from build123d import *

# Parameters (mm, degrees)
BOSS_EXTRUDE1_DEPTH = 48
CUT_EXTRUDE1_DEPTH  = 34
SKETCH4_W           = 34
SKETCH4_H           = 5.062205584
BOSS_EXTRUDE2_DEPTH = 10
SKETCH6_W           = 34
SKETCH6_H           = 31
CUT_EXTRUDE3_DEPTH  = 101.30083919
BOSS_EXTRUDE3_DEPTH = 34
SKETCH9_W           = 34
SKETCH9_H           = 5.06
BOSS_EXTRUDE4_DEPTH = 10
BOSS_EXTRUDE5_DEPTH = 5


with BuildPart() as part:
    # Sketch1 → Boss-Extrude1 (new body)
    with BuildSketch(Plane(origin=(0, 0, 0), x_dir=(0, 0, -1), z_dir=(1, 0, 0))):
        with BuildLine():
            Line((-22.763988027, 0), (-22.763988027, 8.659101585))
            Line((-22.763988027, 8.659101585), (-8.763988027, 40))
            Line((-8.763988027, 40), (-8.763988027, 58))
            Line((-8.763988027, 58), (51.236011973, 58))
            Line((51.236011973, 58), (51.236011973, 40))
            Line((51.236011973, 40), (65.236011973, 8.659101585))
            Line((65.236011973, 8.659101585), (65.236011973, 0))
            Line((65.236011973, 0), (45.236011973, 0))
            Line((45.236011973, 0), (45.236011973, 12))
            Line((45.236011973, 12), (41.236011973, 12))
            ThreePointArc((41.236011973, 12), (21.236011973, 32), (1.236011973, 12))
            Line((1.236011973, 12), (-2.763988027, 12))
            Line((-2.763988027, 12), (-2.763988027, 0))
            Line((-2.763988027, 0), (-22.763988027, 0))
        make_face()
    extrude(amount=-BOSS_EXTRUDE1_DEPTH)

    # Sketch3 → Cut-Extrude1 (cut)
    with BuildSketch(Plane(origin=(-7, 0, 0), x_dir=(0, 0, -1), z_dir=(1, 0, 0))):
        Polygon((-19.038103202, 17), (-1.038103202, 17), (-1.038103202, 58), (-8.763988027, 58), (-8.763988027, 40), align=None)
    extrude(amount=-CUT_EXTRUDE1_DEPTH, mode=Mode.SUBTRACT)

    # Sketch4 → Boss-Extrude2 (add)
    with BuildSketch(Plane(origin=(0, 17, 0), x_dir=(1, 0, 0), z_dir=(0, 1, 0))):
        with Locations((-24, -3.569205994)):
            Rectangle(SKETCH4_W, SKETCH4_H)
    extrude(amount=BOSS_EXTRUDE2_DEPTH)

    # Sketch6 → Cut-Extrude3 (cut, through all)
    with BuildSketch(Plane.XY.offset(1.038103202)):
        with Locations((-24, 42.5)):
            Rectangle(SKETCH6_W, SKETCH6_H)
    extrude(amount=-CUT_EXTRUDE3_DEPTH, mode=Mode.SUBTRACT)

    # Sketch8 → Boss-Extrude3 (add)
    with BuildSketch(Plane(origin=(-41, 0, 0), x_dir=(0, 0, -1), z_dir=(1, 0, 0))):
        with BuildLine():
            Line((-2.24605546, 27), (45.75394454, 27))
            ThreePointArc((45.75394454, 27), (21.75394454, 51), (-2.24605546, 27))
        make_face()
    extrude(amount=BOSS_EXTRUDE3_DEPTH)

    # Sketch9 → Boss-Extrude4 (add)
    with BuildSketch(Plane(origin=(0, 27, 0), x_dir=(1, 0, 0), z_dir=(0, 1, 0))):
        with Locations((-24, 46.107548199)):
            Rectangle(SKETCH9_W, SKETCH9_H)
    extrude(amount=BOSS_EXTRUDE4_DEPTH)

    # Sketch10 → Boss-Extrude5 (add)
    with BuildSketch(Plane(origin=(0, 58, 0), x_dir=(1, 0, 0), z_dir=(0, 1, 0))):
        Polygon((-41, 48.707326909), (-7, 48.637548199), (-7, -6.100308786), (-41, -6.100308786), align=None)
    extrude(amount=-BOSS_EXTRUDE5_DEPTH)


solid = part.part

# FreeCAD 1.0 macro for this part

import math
import FreeCAD as App
import Part
import Sketcher

V = App.Vector
Q = App.Units.Quantity


def add_polygon(sketch, points):
    """Adds a closed chain of lines whose ends are joined by coincident constraints."""
    first, n = sketch.GeometryCount, len(points)
    for a, b in zip(points, points[1:] + points[:1]):
        sketch.addGeometry(Part.LineSegment(App.Vector(*a, 0), App.Vector(*b, 0)), False)
    for i in range(n):
        sketch.addConstraint(Sketcher.Constraint("Coincident", first + i, 2, first + (i + 1) % n, 1))

doc = App.newDocument("Part")
body = doc.addObject("PartDesign::Body", "Body")

# Sketch on YZ plane
sketch1 = doc.addObject("Sketcher::SketchObject", "Sketch")
body.addObject(sketch1)
sketch1.AttachmentSupport = (doc.YZ_Plane, [""])
sketch1.MapMode = "FlatFace"
sketch1.addGeometry([
    Part.LineSegment(V(8.7, 22.8, 0), V(0, 22.8, 0)),  # 0
    Part.LineSegment(V(0, 22.8, 0), V(0, 2.8, 0)),  # 1
    Part.LineSegment(V(0, 2.8, 0), V(12, 2.8, 0)),  # 2
    Part.LineSegment(V(12, 2.8, 0), V(12, -1.2, 0)),  # 3
    Part.ArcOfCircle(Part.Circle(V(12, -21.2, 0), V(0, 0, 1), 20), math.radians(-90), math.radians(90)),  # 4
    Part.LineSegment(V(12, -41.2, 0), V(12, -45.2, 0)),  # 5
    Part.LineSegment(V(12, -45.2, 0), V(0, -45.2, 0)),  # 6
    Part.LineSegment(V(0, -45.2, 0), V(0, -65.2, 0)),  # 7
    Part.LineSegment(V(0, -65.2, 0), V(8.7, -65.2, 0)),  # 8
    Part.LineSegment(V(8.7, -65.2, 0), V(40, -51.2, 0)),  # 9
    Part.LineSegment(V(40, -51.2, 0), V(58, -51.2, 0)),  # 10
    Part.LineSegment(V(58, -51.2, 0), V(58, 8.8, 0)),  # 11
    Part.LineSegment(V(58, 8.8, 0), V(40, 8.8, 0)),  # 12
    Part.LineSegment(V(40, 8.8, 0), V(8.7, 22.8, 0)),  # 13
], False)
sketch1.addConstraint([
    Sketcher.Constraint("Coincident", 0, 2, 1, 1),
    Sketcher.Constraint("Coincident", 1, 2, 2, 1),
    Sketcher.Constraint("Coincident", 2, 2, 3, 1),
    Sketcher.Constraint("Coincident", 3, 2, 4, 2),
    Sketcher.Constraint("Coincident", 4, 1, 5, 1),
    Sketcher.Constraint("Coincident", 5, 2, 6, 1),
    Sketcher.Constraint("Coincident", 6, 2, 7, 1),
    Sketcher.Constraint("Coincident", 7, 2, 8, 1),
    Sketcher.Constraint("Coincident", 8, 2, 9, 1),
    Sketcher.Constraint("Coincident", 9, 2, 10, 1),
    Sketcher.Constraint("Coincident", 10, 2, 11, 1),
    Sketcher.Constraint("Coincident", 11, 2, 12, 1),
    Sketcher.Constraint("Coincident", 12, 2, 13, 1),
    Sketcher.Constraint("Coincident", 13, 2, 0, 1),
    Sketcher.Constraint("Horizontal", 0),
    Sketcher.Constraint("Vertical", 1),
    Sketcher.Constraint("Horizontal", 2),
    Sketcher.Constraint("Vertical", 3),
    Sketcher.Constraint("Vertical", 5),
    Sketcher.Constraint("Horizontal", 6),
    Sketcher.Constraint("Vertical", 7),
    Sketcher.Constraint("Horizontal", 8),
    Sketcher.Constraint("Horizontal", 10),
    Sketcher.Constraint("Vertical", 11),
    Sketcher.Constraint("Horizontal", 12),
    Sketcher.Constraint("PointOnObject", 0, 2, -2),
    Sketcher.Constraint("PointOnObject", 6, 2, -2),
    Sketcher.Constraint("Vertical", 4, 3, 2, 2),
    Sketcher.Constraint("Vertical", 3, 2, 4, 1),
    Sketcher.Constraint("Vertical", 9, 2, 12, 2),
    Sketcher.Constraint("Vertical", 8, 2, 13, 2),
    Sketcher.Constraint("Equal", 3, 5),
    Sketcher.Constraint("Equal", 1, 7),
    Sketcher.Constraint("Equal", 9, 13),
    Sketcher.Constraint("Radius", 4, Q("20 mm")),
    Sketcher.Constraint("DistanceX", 2, 1, 2, 2, Q("12 mm")),
    Sketcher.Constraint("DistanceX", 10, 1, 10, 2, Q("18 mm")),
    Sketcher.Constraint("DistanceY", 1, 2, 1, 1, Q("20 mm")),
    Sketcher.Constraint("DistanceY", 3, 2, 3, 1, Q("4 mm")),
    Sketcher.Constraint("DistanceY", 11, 1, 11, 2, Q("60 mm")),
    Sketcher.Constraint("DistanceX", -1, 1, 9, 2, Q("40 mm")),
    Sketcher.Constraint("DistanceX", 0, 2, 0, 1, Q("8.659102 mm")),
    Sketcher.Constraint("DistanceY", 4, 3, -1, 1, Q("21.236012 mm")),
])
pad1 = doc.addObject("PartDesign::Pad", "Pad")
body.addObject(pad1)
pad1.Profile = sketch1
pad1.Length = 48
pad1.Reversed = True

# Sketch on YZ plane
sketch2 = doc.addObject("Sketcher::SketchObject", "Sketch001")
body.addObject(sketch2)
sketch2.AttachmentSupport = (doc.YZ_Plane, [""])
sketch2.MapMode = "FlatFace"
sketch2.AttachmentOffset = App.Placement(V(0, 0, -7), App.Rotation())
add_polygon(sketch2, [(17, 19), (17, 1), (58, 1), (58, 9), (40, 9)])  # lines 0-4
sketch2.addConstraint([
    Sketcher.Constraint("Vertical", 0),
    Sketcher.Constraint("Horizontal", 1),
    Sketcher.Constraint("Vertical", 2),
    Sketcher.Constraint("Horizontal", 3),
    Sketcher.Constraint("Equal", 3, 0),
    Sketcher.Constraint("DistanceX", 1, 1, 1, 2, Q("41 mm")),
    Sketcher.Constraint("DistanceX", 3, 2, 3, 1, Q("18 mm")),
    Sketcher.Constraint("DistanceX", -1, 1, 0, 2, Q("17 mm")),
    Sketcher.Constraint("DistanceY", 2, 1, 2, 2, Q("7.725885 mm")),
    Sketcher.Constraint("DistanceY", -1, 1, 2, 2, Q("8.763988 mm")),
])
pocket1 = doc.addObject("PartDesign::Pocket", "Pocket")
body.addObject(pocket1)
pocket1.Profile = sketch2
pocket1.Length = 34

# Sketch on XZ plane
sketch3 = doc.addObject("Sketcher::SketchObject", "Sketch002")
body.addObject(sketch3)
sketch3.AttachmentSupport = (doc.XZ_Plane, [""])
sketch3.MapMode = "FlatFace"
sketch3.AttachmentOffset = App.Placement(V(0, 0, -17), App.Rotation())
add_polygon(sketch3, [(-41, 1), (-41, 6), (-7, 6), (-7, 1)])  # lines 0-3
sketch3.addConstraint([
    Sketcher.Constraint("Vertical", 0),
    Sketcher.Constraint("Horizontal", 1),
    Sketcher.Constraint("Vertical", 2),
    Sketcher.Constraint("Horizontal", 3),
    Sketcher.Constraint("DistanceX", 1, 1, 1, 2, Q("34 mm")),
    Sketcher.Constraint("DistanceX", 0, 2, -1, 1, Q("41 mm")),
    Sketcher.Constraint("DistanceY", 0, 1, 0, 2, Q("5.062206 mm")),
    Sketcher.Constraint("DistanceY", -1, 1, 0, 2, Q("6.100309 mm")),
])
pad2 = doc.addObject("PartDesign::Pad", "Pad001")
body.addObject(pad2)
pad2.Profile = sketch3
pad2.Length = 10
pad2.Reversed = True

# Sketch on XY plane
sketch4 = doc.addObject("Sketcher::SketchObject", "Sketch003")
body.addObject(sketch4)
sketch4.AttachmentSupport = (doc.XY_Plane, [""])
sketch4.MapMode = "FlatFace"
sketch4.AttachmentOffset = App.Placement(V(0, 0, 1.038103), App.Rotation())
add_polygon(sketch4, [(-41, 58), (-41, 27), (-7, 27), (-7, 58)])  # lines 0-3
sketch4.addConstraint([
    Sketcher.Constraint("Vertical", 0),
    Sketcher.Constraint("Horizontal", 1),
    Sketcher.Constraint("Vertical", 2),
    Sketcher.Constraint("Horizontal", 3),
    Sketcher.Constraint("DistanceX", 1, 1, 1, 2, Q("34 mm")),
    Sketcher.Constraint("DistanceY", 0, 2, 0, 1, Q("31 mm")),
    Sketcher.Constraint("DistanceX", 0, 2, -1, 1, Q("41 mm")),
    Sketcher.Constraint("DistanceY", -1, 1, 0, 2, Q("27 mm")),
])
pocket2 = doc.addObject("PartDesign::Pocket", "Pocket001")
body.addObject(pocket2)
pocket2.Profile = sketch4
pocket2.Type = "ThroughAll"

# Sketch on YZ plane
sketch5 = doc.addObject("Sketcher::SketchObject", "Sketch004")
body.addObject(sketch5)
sketch5.AttachmentSupport = (doc.YZ_Plane, [""])
sketch5.MapMode = "FlatFace"
sketch5.AttachmentOffset = App.Placement(V(0, 0, -41), App.Rotation())
sketch5.addGeometry([
    Part.LineSegment(V(27, 2, 0), V(27, -46, 0)),
    Part.ArcOfCircle(Part.Circle(V(27, -22, 0), V(0, 0, 1), 24), math.radians(-90), math.radians(90)),
], False)
sketch5.addConstraint([
    Sketcher.Constraint("Coincident", 0, 1, 1, 2),
    Sketcher.Constraint("Coincident", 1, 1, 0, 2),
    Sketcher.Constraint("Vertical", 0),
    Sketcher.Constraint("Vertical", 1, 3, 0, 1),
    Sketcher.Constraint("Radius", 1, Q("24 mm")),
    Sketcher.Constraint("DistanceX", -1, 1, 1, 3, Q("27 mm")),
    Sketcher.Constraint("DistanceY", 1, 3, -1, 1, Q("21.753945 mm")),
])
pad3 = doc.addObject("PartDesign::Pad", "Pad002")
body.addObject(pad3)
pad3.Profile = sketch5
pad3.Length = 34

# Sketch on XZ plane
sketch6 = doc.addObject("Sketcher::SketchObject", "Sketch005")
body.addObject(sketch6)
sketch6.AttachmentSupport = (doc.XZ_Plane, [""])
sketch6.MapMode = "FlatFace"
sketch6.AttachmentOffset = App.Placement(V(0, 0, -27), App.Rotation())
add_polygon(sketch6, [(-41, -49), (-41, -44), (-7, -44), (-7, -49)])  # lines 0-3
sketch6.addConstraint([
    Sketcher.Constraint("Vertical", 0),
    Sketcher.Constraint("Horizontal", 1),
    Sketcher.Constraint("Vertical", 2),
    Sketcher.Constraint("Horizontal", 3),
    Sketcher.Constraint("DistanceX", 1, 1, 1, 2, Q("34 mm")),
    Sketcher.Constraint("DistanceX", 0, 2, -1, 1, Q("41 mm")),
    Sketcher.Constraint("DistanceY", 0, 1, 0, 2, Q("5.06 mm")),
    Sketcher.Constraint("DistanceY", 0, 2, -1, 1, Q("43.577548 mm")),
])
pad4 = doc.addObject("PartDesign::Pad", "Pad003")
body.addObject(pad4)
pad4.Profile = sketch6
pad4.Length = 10
pad4.Reversed = True

# Sketch on XZ plane
sketch7 = doc.addObject("Sketcher::SketchObject", "Sketch006")
body.addObject(sketch7)
sketch7.AttachmentSupport = (doc.XZ_Plane, [""])
sketch7.MapMode = "FlatFace"
sketch7.AttachmentOffset = App.Placement(V(0, 0, -58), App.Rotation())
add_polygon(sketch7, [(-7, -49), (-41, -49), (-41, 6), (-7, 6)])  # lines 0-3
sketch7.addConstraint([
    Sketcher.Constraint("Vertical", 1),
    Sketcher.Constraint("Horizontal", 2),
    Sketcher.Constraint("Vertical", 3),
    Sketcher.Constraint("DistanceX", 2, 1, 2, 2, Q("34 mm")),
    Sketcher.Constraint("DistanceX", 0, 2, -1, 1, Q("41 mm")),
    Sketcher.Constraint("DistanceY", 1, 1, 1, 2, Q("54.807636 mm")),
    Sketcher.Constraint("DistanceY", 3, 2, 3, 1, Q("54.737857 mm")),
    Sketcher.Constraint("DistanceY", -1, 1, 1, 2, Q("6.100309 mm")),
])
pad5 = doc.addObject("PartDesign::Pad", "Pad004")
body.addObject(pad5)
pad5.Profile = sketch7
pad5.Length = 5

doc.recompute()
